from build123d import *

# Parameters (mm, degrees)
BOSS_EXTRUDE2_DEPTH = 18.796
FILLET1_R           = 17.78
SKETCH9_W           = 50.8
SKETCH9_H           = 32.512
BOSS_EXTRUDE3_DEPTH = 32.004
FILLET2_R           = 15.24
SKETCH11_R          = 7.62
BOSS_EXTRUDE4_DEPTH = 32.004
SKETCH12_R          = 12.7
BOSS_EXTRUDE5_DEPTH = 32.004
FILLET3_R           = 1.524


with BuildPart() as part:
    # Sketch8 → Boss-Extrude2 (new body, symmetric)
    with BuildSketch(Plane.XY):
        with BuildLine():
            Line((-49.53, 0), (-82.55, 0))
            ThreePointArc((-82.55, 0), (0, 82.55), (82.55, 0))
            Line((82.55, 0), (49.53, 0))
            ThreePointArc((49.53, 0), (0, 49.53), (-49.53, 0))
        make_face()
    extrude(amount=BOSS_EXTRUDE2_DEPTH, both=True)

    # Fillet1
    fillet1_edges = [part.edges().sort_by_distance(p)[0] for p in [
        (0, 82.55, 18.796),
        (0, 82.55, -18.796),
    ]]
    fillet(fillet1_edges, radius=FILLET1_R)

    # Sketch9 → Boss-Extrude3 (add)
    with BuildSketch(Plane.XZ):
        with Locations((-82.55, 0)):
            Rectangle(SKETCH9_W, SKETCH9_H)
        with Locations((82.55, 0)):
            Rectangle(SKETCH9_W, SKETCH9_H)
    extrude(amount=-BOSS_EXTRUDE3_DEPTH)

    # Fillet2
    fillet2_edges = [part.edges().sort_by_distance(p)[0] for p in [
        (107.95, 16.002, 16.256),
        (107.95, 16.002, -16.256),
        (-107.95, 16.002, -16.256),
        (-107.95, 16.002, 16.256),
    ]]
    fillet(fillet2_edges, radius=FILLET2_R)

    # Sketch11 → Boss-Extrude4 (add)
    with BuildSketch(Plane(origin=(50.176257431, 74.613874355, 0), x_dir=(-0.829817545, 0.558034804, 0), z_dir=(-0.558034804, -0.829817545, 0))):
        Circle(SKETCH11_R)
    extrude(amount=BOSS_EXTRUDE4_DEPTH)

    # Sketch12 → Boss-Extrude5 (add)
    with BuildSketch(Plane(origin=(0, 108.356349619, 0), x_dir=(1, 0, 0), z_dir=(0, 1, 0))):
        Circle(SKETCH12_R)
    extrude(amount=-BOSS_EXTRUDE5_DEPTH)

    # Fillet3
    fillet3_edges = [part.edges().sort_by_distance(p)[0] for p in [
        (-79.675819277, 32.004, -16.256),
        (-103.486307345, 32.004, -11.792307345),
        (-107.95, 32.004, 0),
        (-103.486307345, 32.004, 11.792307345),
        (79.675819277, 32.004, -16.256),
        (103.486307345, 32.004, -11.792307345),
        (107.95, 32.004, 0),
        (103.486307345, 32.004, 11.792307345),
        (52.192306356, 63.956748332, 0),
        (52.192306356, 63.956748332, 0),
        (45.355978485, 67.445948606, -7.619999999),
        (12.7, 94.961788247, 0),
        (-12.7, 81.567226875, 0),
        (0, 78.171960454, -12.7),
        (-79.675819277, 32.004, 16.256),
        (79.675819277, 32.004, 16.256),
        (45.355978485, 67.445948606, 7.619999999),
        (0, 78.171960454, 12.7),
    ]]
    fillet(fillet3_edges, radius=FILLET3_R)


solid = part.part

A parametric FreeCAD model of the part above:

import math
import FreeCAD as App
import Part
import Sketcher

V = App.Vector
Q = App.Units.Quantity


def edges_at(feature, points):
    """Names of the edges that pass closest to the given points."""
    edges = feature.Shape.Edges
    near = lambda p: min(range(len(edges)), key=lambda i: edges[i].distToShape(Part.Vertex(*p))[0])
    return sorted({f"Edge{near(p) + 1}" for p in points})

doc = App.newDocument("Part")
body = doc.addObject("PartDesign::Body", "Body")

# Sketch on XY plane
sketch1 = body.newObject("Sketcher::SketchObject", "Sketch")
sketch1.AttachmentSupport = (doc.getObject("XY_Plane"), [""])
sketch1.MapMode = "FlatFace"
sketch1.addGeometry([
    Part.LineSegment(V(-83, 0, 0), V(-50, 0, 0)),
    Part.ArcOfCircle(Part.Circle(V(0, 0, 0), V(0, 0, 1), 50), math.radians(0), math.radians(180)),
    Part.LineSegment(V(50, 0, 0), V(83, 0, 0)),
    Part.ArcOfCircle(Part.Circle(V(0, 0, 0), V(0, 0, 1), 83), math.radians(0), math.radians(180)),
], False)
sketch1.addConstraint([
    Sketcher.Constraint("Coincident", 0, 2, 1, 2),
    Sketcher.Constraint("Coincident", 1, 1, 2, 1),
    Sketcher.Constraint("Coincident", 2, 2, 3, 1),
    Sketcher.Constraint("Coincident", 3, 2, 0, 1),
    Sketcher.Constraint("Horizontal", 0),
    Sketcher.Constraint("Horizontal", 2),
    Sketcher.Constraint("Coincident", 1, 3, -1, 1),
    Sketcher.Constraint("Coincident", 3, 3, -1, 1),
    Sketcher.Constraint("PointOnObject", 0, 2, -1),
    Sketcher.Constraint("PointOnObject", 1, 1, -1),
    Sketcher.Constraint("Radius", 1, Q("1.95 in")),
    Sketcher.Constraint("Radius", 3, Q("3.25 in")),
])
pad1 = body.newObject("PartDesign::Pad", "Pad")
pad1.Profile = sketch1
pad1.Length = Q("1.48 in")
pad1.Midplane = True
doc.recompute()

fillet = body.newObject("PartDesign::Fillet", "Fillet")
fillet.Base = (pad1, edges_at(pad1, [(0, 82.55, 18.796), (0, 82.55, -18.796)]))
fillet.Radius = Q("0.7 in")

# Sketch on XZ plane
sketch2 = body.newObject("Sketcher::SketchObject", "Sketch001")
sketch2.AttachmentSupport = (doc.getObject("XZ_Plane"), [""])
sketch2.MapMode = "FlatFace"
sketch2.addGeometry([
    Part.LineSegment(V(-108, 16, 0), V(-108, -16, 0)),  # 0
    Part.LineSegment(V(-108, -16, 0), V(-57, -16, 0)),  # 1
    Part.LineSegment(V(-57, -16, 0), V(-57, 16, 0)),  # 2
    Part.LineSegment(V(-57, 16, 0), V(-108, 16, 0)),  # 3
    Part.LineSegment(V(57, 16, 0), V(57, -16, 0)),  # 4
    Part.LineSegment(V(57, -16, 0), V(108, -16, 0)),  # 5
    Part.LineSegment(V(108, -16, 0), V(108, 16, 0)),  # 6
    Part.LineSegment(V(108, 16, 0), V(57, 16, 0)),  # 7
], False)
sketch2.addConstraint([
    Sketcher.Constraint("Coincident", 0, 2, 1, 1),
    Sketcher.Constraint("Coincident", 1, 2, 2, 1),
    Sketcher.Constraint("Coincident", 2, 2, 3, 1),
    Sketcher.Constraint("Coincident", 3, 2, 0, 1),
    Sketcher.Constraint("Coincident", 4, 2, 5, 1),
    Sketcher.Constraint("Coincident", 5, 2, 6, 1),
    Sketcher.Constraint("Coincident", 6, 2, 7, 1),
    Sketcher.Constraint("Coincident", 7, 2, 4, 1),
    Sketcher.Constraint("Vertical", 0),
    Sketcher.Constraint("Horizontal", 1),
    Sketcher.Constraint("Vertical", 2),
    Sketcher.Constraint("Horizontal", 3),
    Sketcher.Constraint("Vertical", 4),
    Sketcher.Constraint("Horizontal", 5),
    Sketcher.Constraint("Vertical", 6),
    Sketcher.Constraint("Horizontal", 7),
    Sketcher.Constraint("Symmetric", 2, 2, 4, 2, -1, 1),
    Sketcher.Constraint("Symmetric", 0, 2, 6, 2, -1, 1),
    Sketcher.Constraint("Horizontal", 1, 2, 4, 2),
    Sketcher.Constraint("DistanceX", 1, 1, 1, 2, Q("2 in")),
    Sketcher.Constraint("DistanceY", 0, 2, 0, 1, Q("1.28 in")),
    Sketcher.Constraint("DistanceX", 1, 2, 4, 2, Q("4.5 in")),
])
pad2 = body.newObject("PartDesign::Pad", "Pad001")
pad2.Profile = sketch2
pad2.Length = Q("1.26 in")
pad2.Reversed = True
doc.recompute()

fillet2 = body.newObject("PartDesign::Fillet", "Fillet001")
fillet2.Base = (pad2, edges_at(pad2, [
    (107.95, 16.002, 16.256),
    (107.95, 16.002, -16.256),
    (-107.95, 16.002, -16.256),
    (-107.95, 16.002, 16.256),
]))
fillet2.Radius = Q("0.6 in")

# Sketch on an angled plane
sketch3 = body.newObject("Sketcher::SketchObject", "Sketch002")
sketch3.Placement = App.Placement(V(50.176257, 74.613874, 0), App.Rotation(V(-0.829817545, 0.558034804, 0), V(0, 0, -1), V(-0.558034804, -0.829817545, 0), "ZXY"))
sketch3.addGeometry(Part.Circle(V(0, 0, 0), V(0, 0, 1), 8), False)
sketch3.addConstraint([
    Sketcher.Constraint("Coincident", 0, 3, -1, 1),
    Sketcher.Constraint("Diameter", 0, Q("0.6 in")),
])
pad3 = body.newObject("PartDesign::Pad", "Pad002")
pad3.Profile = sketch3
pad3.Length = Q("1.26 in")

# Sketch on XZ plane
sketch4 = body.newObject("Sketcher::SketchObject", "Sketch003")
sketch4.AttachmentSupport = (doc.getObject("XZ_Plane"), [""])
sketch4.MapMode = "FlatFace"
sketch4.AttachmentOffset = App.Placement(V(0, 0, -108.35635), App.Rotation())
sketch4.addGeometry(Part.Circle(V(0, 0, 0), V(0, 0, 1), 13), False)
sketch4.addConstraint([
    Sketcher.Constraint("Coincident", 0, 3, -1, 1),
    Sketcher.Constraint("Diameter", 0, Q("1 in")),
])
pad4 = body.newObject("PartDesign::Pad", "Pad003")
pad4.Profile = sketch4
pad4.Length = Q("1.26 in")
doc.recompute()

fillet3 = body.newObject("PartDesign::Fillet", "Fillet002")
fillet3.Base = (pad4, edges_at(pad4, [
    (-79.676, 32.004, -16.256),
    (-103.486, 32.004, -11.792),
    (-107.95, 32.004, 0),
    (-103.486, 32.004, 11.792),
    (79.676, 32.004, -16.256),
    (103.486, 32.004, -11.792),
    (107.95, 32.004, 0),
    (103.486, 32.004, 11.792),
    (52.192, 63.957, 0),
    (52.192, 63.957, 0),
    (45.356, 67.446, -7.62),
    (12.7, 94.962, 0),
    (-12.7, 81.567, 0),
    (0, 78.172, -12.7),
    (-79.676, 32.004, 16.256),
    (79.676, 32.004, 16.256),
    (45.356, 67.446, 7.62),
    (0, 78.172, 12.7),
]))
fillet3.Radius = Q("0.06 in")

doc.recompute()
